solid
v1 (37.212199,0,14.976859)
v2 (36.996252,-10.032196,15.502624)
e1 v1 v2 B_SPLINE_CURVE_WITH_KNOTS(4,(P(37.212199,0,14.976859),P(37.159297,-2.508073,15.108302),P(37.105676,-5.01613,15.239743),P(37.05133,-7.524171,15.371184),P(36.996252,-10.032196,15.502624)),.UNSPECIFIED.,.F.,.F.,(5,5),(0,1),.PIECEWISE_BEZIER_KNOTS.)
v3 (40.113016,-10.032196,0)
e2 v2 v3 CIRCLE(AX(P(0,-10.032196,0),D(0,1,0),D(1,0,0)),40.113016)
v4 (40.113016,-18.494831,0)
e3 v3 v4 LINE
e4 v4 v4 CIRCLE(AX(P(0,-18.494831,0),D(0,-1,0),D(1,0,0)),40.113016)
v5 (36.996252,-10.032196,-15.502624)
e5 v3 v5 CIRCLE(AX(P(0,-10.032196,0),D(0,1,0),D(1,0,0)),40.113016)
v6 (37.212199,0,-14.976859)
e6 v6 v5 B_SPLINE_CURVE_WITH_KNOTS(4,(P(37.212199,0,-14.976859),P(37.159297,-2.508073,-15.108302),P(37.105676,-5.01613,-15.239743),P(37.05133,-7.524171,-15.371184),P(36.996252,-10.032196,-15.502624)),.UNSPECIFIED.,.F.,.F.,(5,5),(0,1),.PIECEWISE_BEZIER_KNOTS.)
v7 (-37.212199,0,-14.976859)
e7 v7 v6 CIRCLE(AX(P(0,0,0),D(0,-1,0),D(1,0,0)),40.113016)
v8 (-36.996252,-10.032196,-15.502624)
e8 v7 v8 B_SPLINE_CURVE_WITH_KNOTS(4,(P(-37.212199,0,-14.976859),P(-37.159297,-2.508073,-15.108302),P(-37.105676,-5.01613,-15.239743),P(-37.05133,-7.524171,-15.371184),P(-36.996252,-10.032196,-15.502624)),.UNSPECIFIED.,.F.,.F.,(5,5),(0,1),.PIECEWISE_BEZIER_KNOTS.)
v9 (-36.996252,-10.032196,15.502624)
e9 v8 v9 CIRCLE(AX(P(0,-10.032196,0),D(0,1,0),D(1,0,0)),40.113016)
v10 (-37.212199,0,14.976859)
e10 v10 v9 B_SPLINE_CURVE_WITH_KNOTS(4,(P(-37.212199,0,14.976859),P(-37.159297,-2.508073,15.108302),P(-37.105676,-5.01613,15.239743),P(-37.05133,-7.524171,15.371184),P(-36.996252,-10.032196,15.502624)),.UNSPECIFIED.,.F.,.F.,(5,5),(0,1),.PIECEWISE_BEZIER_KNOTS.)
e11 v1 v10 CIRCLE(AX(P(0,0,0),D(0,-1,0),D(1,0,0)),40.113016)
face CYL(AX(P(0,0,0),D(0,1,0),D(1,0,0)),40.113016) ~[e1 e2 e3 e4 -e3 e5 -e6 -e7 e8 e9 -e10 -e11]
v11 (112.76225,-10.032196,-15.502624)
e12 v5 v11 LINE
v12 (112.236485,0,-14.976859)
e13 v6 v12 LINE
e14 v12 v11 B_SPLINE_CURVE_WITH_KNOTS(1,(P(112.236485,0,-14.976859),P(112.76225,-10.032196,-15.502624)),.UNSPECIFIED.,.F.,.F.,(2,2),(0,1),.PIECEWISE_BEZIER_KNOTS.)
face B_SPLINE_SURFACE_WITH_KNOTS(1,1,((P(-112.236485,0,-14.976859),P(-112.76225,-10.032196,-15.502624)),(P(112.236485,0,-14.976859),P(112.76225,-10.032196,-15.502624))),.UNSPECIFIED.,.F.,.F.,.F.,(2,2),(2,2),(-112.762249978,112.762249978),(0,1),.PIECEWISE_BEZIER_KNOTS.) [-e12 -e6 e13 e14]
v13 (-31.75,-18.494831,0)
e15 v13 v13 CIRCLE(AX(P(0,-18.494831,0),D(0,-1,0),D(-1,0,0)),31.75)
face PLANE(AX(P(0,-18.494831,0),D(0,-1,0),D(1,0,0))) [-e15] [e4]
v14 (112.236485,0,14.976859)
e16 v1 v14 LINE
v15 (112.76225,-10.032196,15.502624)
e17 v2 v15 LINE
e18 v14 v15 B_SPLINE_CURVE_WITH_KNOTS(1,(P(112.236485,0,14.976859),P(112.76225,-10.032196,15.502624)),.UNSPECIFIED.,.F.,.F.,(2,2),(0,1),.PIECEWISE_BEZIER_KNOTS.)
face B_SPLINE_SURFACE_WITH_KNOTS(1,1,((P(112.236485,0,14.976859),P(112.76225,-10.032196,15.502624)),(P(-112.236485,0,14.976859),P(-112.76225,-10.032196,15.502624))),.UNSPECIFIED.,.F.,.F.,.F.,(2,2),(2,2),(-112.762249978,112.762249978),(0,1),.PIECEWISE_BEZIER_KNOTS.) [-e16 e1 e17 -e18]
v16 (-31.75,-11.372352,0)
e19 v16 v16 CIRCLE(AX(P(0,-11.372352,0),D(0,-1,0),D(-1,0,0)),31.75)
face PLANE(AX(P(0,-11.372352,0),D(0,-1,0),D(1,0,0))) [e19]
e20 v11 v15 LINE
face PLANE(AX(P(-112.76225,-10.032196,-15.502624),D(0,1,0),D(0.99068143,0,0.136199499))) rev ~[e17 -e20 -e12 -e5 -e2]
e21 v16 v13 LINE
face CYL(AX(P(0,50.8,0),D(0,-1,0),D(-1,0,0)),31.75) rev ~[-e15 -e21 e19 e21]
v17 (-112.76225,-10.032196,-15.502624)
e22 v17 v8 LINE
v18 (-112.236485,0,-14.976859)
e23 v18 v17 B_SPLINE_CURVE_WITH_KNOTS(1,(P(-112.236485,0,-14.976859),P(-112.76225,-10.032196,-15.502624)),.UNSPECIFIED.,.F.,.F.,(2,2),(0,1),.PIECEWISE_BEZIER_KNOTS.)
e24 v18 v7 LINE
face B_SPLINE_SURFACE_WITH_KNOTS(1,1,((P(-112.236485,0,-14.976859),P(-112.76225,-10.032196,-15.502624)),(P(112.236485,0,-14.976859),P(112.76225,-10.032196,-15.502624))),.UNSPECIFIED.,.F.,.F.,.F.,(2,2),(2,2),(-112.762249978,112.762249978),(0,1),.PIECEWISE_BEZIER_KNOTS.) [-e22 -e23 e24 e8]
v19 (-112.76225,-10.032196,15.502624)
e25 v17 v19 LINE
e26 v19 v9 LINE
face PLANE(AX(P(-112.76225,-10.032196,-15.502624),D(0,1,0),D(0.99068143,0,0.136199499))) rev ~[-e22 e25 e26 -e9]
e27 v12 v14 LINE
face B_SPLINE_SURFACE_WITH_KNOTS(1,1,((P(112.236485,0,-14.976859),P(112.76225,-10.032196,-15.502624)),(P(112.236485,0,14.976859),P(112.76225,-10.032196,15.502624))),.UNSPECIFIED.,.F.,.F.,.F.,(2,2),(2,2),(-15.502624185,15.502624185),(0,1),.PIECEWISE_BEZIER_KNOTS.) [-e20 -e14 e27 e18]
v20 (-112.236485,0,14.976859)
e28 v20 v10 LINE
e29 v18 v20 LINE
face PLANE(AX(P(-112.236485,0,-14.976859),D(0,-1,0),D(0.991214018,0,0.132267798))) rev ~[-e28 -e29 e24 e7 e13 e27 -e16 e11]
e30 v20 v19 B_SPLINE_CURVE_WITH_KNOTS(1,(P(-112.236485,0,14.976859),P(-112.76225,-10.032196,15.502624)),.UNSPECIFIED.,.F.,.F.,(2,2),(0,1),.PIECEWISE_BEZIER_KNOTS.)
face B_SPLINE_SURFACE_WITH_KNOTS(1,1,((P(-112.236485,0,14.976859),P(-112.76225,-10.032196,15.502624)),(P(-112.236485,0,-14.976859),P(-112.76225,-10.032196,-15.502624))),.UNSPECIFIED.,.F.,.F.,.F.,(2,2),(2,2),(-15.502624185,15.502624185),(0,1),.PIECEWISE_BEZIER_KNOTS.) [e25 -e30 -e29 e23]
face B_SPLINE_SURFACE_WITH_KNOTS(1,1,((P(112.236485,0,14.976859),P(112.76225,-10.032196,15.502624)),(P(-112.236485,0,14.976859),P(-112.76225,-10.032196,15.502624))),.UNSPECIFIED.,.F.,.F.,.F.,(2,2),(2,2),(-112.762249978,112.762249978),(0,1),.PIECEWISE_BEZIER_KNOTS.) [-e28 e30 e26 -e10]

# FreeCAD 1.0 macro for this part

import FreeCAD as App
import Part
import Sketcher
from FreeCAD import Vector
Q = App.Units.Quantity

doc = App.newDocument("Part")
body = doc.addObject("PartDesign::Body", "Body")

sketch1 = body.newObject("Sketcher::SketchObject", "Sketch")
sketch1.AttachmentSupport = (doc.getObject("XZ_Plane"), [""])
sketch1.MapMode = "FlatFace"
sketch1.addGeometry(Part.Circle(Vector(0, 0, 0), Vector(0, 0, 1), 32.692312), False)
sketch1.addConstraint(Sketcher.Constraint("Coincident", 0, 3, -1, 1))
sketch1.addConstraint(Sketcher.Constraint("Diameter", 0, Q("65.384625 mm")))
pad1 = body.newObject("PartDesign::Pad", "Pad")
pad1.Profile = sketch1
pad1.Length = 14.650865

sketch2 = body.newObject("Sketcher::SketchObject", "Sketch001")
sketch2.AttachmentSupport = (doc.getObject("XZ_Plane"), [""])
sketch2.MapMode = "FlatFace"
sketch2.addGeometry(Part.LineSegment(Vector(-112.236485, 14.976859, 0), Vector(-112.236485, -14.976859, 0)), False)
sketch2.addGeometry(Part.LineSegment(Vector(-112.236485, -14.976859, 0), Vector(112.236485, -14.976859, 0)), False)
sketch2.addGeometry(Part.LineSegment(Vector(112.236485, -14.976859, 0), Vector(112.236485, 14.976859, 0)), False)
sketch2.addGeometry(Part.LineSegment(Vector(112.236485, 14.976859, 0), Vector(-112.236485, 14.976859, 0)), False)
sketch2.addConstraint(Sketcher.Constraint("Coincident", 0, 2, 1, 1))
sketch2.addConstraint(Sketcher.Constraint("Coincident", 1, 2, 2, 1))
sketch2.addConstraint(Sketcher.Constraint("Coincident", 2, 2, 3, 1))
sketch2.addConstraint(Sketcher.Constraint("Coincident", 3, 2, 0, 1))
sketch2.addConstraint(Sketcher.Constraint("Vertical", 0))
sketch2.addConstraint(Sketcher.Constraint("Horizontal", 1))
sketch2.addConstraint(Sketcher.Constraint("Vertical", 2))
sketch2.addConstraint(Sketcher.Constraint("Horizontal", 3))
sketch2.addConstraint(Sketcher.Constraint("Symmetric", 0, 2, 2, 2, -1, 1))
sketch2.addConstraint(Sketcher.Constraint("DistanceX", 1, 1, 1, 2, Q("224.47297 mm")))
sketch2.addConstraint(Sketcher.Constraint("DistanceY", 0, 2, 0, 1, Q("29.953718 mm")))
pad2 = body.newObject("PartDesign::Pad", "Pad001")
pad2.Profile = sketch2
pad2.Length = 10.032196
pad2.TaperAngle = 3

sketch3 = body.newObject("Sketcher::SketchObject", "Sketch002")
sketch3.AttachmentSupport = (doc.getObject("XZ_Plane"), [""])
sketch3.MapMode = "FlatFace"
sketch3.addGeometry(Part.Circle(Vector(0, 0, 0), Vector(0, 0, 1), 40.113016), False)
sketch3.addConstraint(Sketcher.Constraint("Coincident", 0, 3, -1, 1))
sketch3.addConstraint(Sketcher.Constraint("Diameter", 0, Q("80.226032 mm")))
pad3 = body.newObject("PartDesign::Pad", "Pad002")
pad3.Profile = sketch3
pad3.Length = 18.494831

sketch4 = body.newObject("Sketcher::SketchObject", "Sketch003")
sketch4.AttachmentSupport = (doc.getObject("XZ_Plane"), [""])
sketch4.MapMode = "FlatFace"
sketch4.addGeometry(Part.Circle(Vector(0, 0, 0), Vector(0, 0, 1), 31.75), False)
sketch4.addConstraint(Sketcher.Constraint("Coincident", 0, 3, -1, 1))
sketch4.addConstraint(Sketcher.Constraint("Diameter", 0, Q("2.5 in")))
doc.recompute()
hole = body.newObject("PartDesign::Hole", "Hole")
hole.Profile = sketch4
hole.ThreadType = "None"
hole.Diameter = Q("2.5 in")
hole.DepthType = "Dimension"
hole.Depth = Q("2 in")
hole.DrillPoint = "Angled"
hole.DrillPointAngle = 118
hole.Reversed = True

sketch5 = body.newObject("Sketcher::SketchObject", "Sketch004")
sketch5.AttachmentSupport = (doc.getObject("XZ_Plane"), [""])
sketch5.MapMode = "FlatFace"
sketch5.addGeometry(Part.Circle(Vector(0, 0, 0), Vector(0, 0, 1), 32.692312), False)
sketch5.addConstraint(Sketcher.Constraint("Coincident", 0, 3, -1, 1))
sketch5.addConstraint(Sketcher.Constraint("Diameter", 0, Q("65.384625 mm")))
pad4 = body.newObject("PartDesign::Pad", "Pad003")
pad4.Profile = sketch5
pad4.Length = 11.372352

doc.recompute()
